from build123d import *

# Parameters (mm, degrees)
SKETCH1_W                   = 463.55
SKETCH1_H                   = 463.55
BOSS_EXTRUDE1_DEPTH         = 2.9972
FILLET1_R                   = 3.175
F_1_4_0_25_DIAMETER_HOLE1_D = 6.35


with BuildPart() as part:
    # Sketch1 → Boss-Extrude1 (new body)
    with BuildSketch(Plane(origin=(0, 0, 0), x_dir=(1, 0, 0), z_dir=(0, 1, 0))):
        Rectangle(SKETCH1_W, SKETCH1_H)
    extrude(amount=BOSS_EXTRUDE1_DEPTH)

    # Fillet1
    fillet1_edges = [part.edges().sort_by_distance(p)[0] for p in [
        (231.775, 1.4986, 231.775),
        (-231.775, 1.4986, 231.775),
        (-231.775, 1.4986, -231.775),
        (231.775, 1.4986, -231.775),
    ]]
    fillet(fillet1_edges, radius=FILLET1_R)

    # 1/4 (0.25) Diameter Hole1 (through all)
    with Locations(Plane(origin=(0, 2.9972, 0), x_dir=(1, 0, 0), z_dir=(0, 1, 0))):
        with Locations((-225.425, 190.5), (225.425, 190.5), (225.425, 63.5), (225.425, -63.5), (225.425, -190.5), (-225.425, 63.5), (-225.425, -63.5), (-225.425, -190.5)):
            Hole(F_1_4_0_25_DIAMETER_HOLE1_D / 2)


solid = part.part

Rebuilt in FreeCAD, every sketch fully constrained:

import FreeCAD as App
import Part
import Sketcher
from FreeCAD import Vector
Q = App.Units.Quantity


def edges_at(feature, points):
    """Names of the edges that pass closest to the given points."""
    edges = feature.Shape.Edges
    near = lambda p: min(range(len(edges)), key=lambda i: edges[i].distToShape(Part.Vertex(*p))[0])
    return sorted({f"Edge{near(p) + 1}" for p in points})

doc = App.newDocument("Part")
body = doc.addObject("PartDesign::Body", "Body")

sketch1 = body.newObject("Sketcher::SketchObject", "Sketch")
sketch1.AttachmentSupport = (doc.getObject("XZ_Plane"), [""])
sketch1.MapMode = "FlatFace"
sketch1.addGeometry([
    Part.LineSegment(Vector(-232, -232, 0), Vector(-232, 232, 0)),
    Part.LineSegment(Vector(-232, 232, 0), Vector(232, 232, 0)),
    Part.LineSegment(Vector(232, 232, 0), Vector(232, -232, 0)),
    Part.LineSegment(Vector(232, -232, 0), Vector(-232, -232, 0)),
], False)
sketch1.addConstraint([
    Sketcher.Constraint("Coincident", 0, 2, 1, 1),
    Sketcher.Constraint("Coincident", 1, 2, 2, 1),
    Sketcher.Constraint("Coincident", 2, 2, 3, 1),
    Sketcher.Constraint("Coincident", 3, 2, 0, 1),
    Sketcher.Constraint("Vertical", 0),
    Sketcher.Constraint("Horizontal", 1),
    Sketcher.Constraint("Vertical", 2),
    Sketcher.Constraint("Horizontal", 3),
    Sketcher.Constraint("Symmetric", 0, 2, 2, 2, -1, 1),
    Sketcher.Constraint("Equal", 3, 0),
    Sketcher.Constraint("DistanceX", 1, 1, 1, 2, Q("18.25 in")),
])
pad1 = body.newObject("PartDesign::Pad", "Pad")
pad1.Profile = sketch1
pad1.Length = Q("0.118 in")
pad1.Reversed = True
doc.recompute()

fillet = body.newObject("PartDesign::Fillet", "Fillet")
fillet.Base = (pad1, edges_at(pad1, [
    (231.775, 1.499, 231.775),
    (-231.775, 1.499, 231.775),
    (-231.775, 1.499, -231.775),
    (231.775, 1.499, -231.775),
]))
fillet.Radius = Q("0.125 in")

sketch2 = body.newObject("Sketcher::SketchObject", "Sketch001")
sketch2.AttachmentSupport = (doc.getObject("XZ_Plane"), [""])
sketch2.MapMode = "FlatFace"
sketch2.AttachmentOffset = App.Placement(Vector(0, 0, -0.118 * 25.4), App.Rotation())
sketch2.addGeometry([
    Part.Circle(Vector(-225.4, -190.5, 0), Vector(0, 0, 1), 3.2),
    Part.Circle(Vector(225.4, -190.5, 0), Vector(0, 0, 1), 3.2),
    Part.Circle(Vector(225.4, -63.5, 0), Vector(0, 0, 1), 3.2),
    Part.Circle(Vector(225.4, 63.5, 0), Vector(0, 0, 1), 3.2),
    Part.Circle(Vector(225.4, 190.5, 0), Vector(0, 0, 1), 3.2),
    Part.Circle(Vector(-225.4, -63.5, 0), Vector(0, 0, 1), 3.2),
    Part.Circle(Vector(-225.4, 63.5, 0), Vector(0, 0, 1), 3.2),
    Part.Circle(Vector(-225.4, 190.5, 0), Vector(0, 0, 1), 3.2),
], False)
sketch2.addConstraint([
    Sketcher.Constraint("Equal", 0, 1),
    Sketcher.Constraint("Equal", 1, 2),
    Sketcher.Constraint("Equal", 2, 3),
    Sketcher.Constraint("Equal", 3, 4),
    Sketcher.Constraint("Equal", 4, 5),
    Sketcher.Constraint("Equal", 5, 6),
    Sketcher.Constraint("Equal", 6, 7),
    Sketcher.Constraint("Symmetric", 0, 3, 4, 3, -1, 1),
    Sketcher.Constraint("Symmetric", 3, 3, 5, 3, -1, 1),
    Sketcher.Constraint("Symmetric", 2, 3, 6, 3, -1, 1),
    Sketcher.Constraint("Symmetric", 1, 3, 7, 3, -1, 1),
    Sketcher.Constraint("Symmetric", 0, 3, 1, 3, -2),
    Sketcher.Constraint("Symmetric", 2, 3, 5, 3, -2),
    Sketcher.Constraint("Vertical", 1, 3, 2, 3),
    Sketcher.Constraint("Diameter", 0, Q("0.25 in")),
    Sketcher.Constraint("DistanceY", 1, 3, 2, 3, Q("5 in")),
    Sketcher.Constraint("DistanceY", 2, 3, 3, 3, Q("5 in")),
    Sketcher.Constraint("DistanceX", 0, 3, 1, 3, Q("17.75 in")),
])
doc.recompute()
hole = body.newObject("PartDesign::Hole", "Hole")
hole.Profile = sketch2
hole.ThreadType = "None"
hole.Diameter = Q("0.25 in")
hole.DepthType = "ThroughAll"
hole.Reversed = True

doc.recompute()
